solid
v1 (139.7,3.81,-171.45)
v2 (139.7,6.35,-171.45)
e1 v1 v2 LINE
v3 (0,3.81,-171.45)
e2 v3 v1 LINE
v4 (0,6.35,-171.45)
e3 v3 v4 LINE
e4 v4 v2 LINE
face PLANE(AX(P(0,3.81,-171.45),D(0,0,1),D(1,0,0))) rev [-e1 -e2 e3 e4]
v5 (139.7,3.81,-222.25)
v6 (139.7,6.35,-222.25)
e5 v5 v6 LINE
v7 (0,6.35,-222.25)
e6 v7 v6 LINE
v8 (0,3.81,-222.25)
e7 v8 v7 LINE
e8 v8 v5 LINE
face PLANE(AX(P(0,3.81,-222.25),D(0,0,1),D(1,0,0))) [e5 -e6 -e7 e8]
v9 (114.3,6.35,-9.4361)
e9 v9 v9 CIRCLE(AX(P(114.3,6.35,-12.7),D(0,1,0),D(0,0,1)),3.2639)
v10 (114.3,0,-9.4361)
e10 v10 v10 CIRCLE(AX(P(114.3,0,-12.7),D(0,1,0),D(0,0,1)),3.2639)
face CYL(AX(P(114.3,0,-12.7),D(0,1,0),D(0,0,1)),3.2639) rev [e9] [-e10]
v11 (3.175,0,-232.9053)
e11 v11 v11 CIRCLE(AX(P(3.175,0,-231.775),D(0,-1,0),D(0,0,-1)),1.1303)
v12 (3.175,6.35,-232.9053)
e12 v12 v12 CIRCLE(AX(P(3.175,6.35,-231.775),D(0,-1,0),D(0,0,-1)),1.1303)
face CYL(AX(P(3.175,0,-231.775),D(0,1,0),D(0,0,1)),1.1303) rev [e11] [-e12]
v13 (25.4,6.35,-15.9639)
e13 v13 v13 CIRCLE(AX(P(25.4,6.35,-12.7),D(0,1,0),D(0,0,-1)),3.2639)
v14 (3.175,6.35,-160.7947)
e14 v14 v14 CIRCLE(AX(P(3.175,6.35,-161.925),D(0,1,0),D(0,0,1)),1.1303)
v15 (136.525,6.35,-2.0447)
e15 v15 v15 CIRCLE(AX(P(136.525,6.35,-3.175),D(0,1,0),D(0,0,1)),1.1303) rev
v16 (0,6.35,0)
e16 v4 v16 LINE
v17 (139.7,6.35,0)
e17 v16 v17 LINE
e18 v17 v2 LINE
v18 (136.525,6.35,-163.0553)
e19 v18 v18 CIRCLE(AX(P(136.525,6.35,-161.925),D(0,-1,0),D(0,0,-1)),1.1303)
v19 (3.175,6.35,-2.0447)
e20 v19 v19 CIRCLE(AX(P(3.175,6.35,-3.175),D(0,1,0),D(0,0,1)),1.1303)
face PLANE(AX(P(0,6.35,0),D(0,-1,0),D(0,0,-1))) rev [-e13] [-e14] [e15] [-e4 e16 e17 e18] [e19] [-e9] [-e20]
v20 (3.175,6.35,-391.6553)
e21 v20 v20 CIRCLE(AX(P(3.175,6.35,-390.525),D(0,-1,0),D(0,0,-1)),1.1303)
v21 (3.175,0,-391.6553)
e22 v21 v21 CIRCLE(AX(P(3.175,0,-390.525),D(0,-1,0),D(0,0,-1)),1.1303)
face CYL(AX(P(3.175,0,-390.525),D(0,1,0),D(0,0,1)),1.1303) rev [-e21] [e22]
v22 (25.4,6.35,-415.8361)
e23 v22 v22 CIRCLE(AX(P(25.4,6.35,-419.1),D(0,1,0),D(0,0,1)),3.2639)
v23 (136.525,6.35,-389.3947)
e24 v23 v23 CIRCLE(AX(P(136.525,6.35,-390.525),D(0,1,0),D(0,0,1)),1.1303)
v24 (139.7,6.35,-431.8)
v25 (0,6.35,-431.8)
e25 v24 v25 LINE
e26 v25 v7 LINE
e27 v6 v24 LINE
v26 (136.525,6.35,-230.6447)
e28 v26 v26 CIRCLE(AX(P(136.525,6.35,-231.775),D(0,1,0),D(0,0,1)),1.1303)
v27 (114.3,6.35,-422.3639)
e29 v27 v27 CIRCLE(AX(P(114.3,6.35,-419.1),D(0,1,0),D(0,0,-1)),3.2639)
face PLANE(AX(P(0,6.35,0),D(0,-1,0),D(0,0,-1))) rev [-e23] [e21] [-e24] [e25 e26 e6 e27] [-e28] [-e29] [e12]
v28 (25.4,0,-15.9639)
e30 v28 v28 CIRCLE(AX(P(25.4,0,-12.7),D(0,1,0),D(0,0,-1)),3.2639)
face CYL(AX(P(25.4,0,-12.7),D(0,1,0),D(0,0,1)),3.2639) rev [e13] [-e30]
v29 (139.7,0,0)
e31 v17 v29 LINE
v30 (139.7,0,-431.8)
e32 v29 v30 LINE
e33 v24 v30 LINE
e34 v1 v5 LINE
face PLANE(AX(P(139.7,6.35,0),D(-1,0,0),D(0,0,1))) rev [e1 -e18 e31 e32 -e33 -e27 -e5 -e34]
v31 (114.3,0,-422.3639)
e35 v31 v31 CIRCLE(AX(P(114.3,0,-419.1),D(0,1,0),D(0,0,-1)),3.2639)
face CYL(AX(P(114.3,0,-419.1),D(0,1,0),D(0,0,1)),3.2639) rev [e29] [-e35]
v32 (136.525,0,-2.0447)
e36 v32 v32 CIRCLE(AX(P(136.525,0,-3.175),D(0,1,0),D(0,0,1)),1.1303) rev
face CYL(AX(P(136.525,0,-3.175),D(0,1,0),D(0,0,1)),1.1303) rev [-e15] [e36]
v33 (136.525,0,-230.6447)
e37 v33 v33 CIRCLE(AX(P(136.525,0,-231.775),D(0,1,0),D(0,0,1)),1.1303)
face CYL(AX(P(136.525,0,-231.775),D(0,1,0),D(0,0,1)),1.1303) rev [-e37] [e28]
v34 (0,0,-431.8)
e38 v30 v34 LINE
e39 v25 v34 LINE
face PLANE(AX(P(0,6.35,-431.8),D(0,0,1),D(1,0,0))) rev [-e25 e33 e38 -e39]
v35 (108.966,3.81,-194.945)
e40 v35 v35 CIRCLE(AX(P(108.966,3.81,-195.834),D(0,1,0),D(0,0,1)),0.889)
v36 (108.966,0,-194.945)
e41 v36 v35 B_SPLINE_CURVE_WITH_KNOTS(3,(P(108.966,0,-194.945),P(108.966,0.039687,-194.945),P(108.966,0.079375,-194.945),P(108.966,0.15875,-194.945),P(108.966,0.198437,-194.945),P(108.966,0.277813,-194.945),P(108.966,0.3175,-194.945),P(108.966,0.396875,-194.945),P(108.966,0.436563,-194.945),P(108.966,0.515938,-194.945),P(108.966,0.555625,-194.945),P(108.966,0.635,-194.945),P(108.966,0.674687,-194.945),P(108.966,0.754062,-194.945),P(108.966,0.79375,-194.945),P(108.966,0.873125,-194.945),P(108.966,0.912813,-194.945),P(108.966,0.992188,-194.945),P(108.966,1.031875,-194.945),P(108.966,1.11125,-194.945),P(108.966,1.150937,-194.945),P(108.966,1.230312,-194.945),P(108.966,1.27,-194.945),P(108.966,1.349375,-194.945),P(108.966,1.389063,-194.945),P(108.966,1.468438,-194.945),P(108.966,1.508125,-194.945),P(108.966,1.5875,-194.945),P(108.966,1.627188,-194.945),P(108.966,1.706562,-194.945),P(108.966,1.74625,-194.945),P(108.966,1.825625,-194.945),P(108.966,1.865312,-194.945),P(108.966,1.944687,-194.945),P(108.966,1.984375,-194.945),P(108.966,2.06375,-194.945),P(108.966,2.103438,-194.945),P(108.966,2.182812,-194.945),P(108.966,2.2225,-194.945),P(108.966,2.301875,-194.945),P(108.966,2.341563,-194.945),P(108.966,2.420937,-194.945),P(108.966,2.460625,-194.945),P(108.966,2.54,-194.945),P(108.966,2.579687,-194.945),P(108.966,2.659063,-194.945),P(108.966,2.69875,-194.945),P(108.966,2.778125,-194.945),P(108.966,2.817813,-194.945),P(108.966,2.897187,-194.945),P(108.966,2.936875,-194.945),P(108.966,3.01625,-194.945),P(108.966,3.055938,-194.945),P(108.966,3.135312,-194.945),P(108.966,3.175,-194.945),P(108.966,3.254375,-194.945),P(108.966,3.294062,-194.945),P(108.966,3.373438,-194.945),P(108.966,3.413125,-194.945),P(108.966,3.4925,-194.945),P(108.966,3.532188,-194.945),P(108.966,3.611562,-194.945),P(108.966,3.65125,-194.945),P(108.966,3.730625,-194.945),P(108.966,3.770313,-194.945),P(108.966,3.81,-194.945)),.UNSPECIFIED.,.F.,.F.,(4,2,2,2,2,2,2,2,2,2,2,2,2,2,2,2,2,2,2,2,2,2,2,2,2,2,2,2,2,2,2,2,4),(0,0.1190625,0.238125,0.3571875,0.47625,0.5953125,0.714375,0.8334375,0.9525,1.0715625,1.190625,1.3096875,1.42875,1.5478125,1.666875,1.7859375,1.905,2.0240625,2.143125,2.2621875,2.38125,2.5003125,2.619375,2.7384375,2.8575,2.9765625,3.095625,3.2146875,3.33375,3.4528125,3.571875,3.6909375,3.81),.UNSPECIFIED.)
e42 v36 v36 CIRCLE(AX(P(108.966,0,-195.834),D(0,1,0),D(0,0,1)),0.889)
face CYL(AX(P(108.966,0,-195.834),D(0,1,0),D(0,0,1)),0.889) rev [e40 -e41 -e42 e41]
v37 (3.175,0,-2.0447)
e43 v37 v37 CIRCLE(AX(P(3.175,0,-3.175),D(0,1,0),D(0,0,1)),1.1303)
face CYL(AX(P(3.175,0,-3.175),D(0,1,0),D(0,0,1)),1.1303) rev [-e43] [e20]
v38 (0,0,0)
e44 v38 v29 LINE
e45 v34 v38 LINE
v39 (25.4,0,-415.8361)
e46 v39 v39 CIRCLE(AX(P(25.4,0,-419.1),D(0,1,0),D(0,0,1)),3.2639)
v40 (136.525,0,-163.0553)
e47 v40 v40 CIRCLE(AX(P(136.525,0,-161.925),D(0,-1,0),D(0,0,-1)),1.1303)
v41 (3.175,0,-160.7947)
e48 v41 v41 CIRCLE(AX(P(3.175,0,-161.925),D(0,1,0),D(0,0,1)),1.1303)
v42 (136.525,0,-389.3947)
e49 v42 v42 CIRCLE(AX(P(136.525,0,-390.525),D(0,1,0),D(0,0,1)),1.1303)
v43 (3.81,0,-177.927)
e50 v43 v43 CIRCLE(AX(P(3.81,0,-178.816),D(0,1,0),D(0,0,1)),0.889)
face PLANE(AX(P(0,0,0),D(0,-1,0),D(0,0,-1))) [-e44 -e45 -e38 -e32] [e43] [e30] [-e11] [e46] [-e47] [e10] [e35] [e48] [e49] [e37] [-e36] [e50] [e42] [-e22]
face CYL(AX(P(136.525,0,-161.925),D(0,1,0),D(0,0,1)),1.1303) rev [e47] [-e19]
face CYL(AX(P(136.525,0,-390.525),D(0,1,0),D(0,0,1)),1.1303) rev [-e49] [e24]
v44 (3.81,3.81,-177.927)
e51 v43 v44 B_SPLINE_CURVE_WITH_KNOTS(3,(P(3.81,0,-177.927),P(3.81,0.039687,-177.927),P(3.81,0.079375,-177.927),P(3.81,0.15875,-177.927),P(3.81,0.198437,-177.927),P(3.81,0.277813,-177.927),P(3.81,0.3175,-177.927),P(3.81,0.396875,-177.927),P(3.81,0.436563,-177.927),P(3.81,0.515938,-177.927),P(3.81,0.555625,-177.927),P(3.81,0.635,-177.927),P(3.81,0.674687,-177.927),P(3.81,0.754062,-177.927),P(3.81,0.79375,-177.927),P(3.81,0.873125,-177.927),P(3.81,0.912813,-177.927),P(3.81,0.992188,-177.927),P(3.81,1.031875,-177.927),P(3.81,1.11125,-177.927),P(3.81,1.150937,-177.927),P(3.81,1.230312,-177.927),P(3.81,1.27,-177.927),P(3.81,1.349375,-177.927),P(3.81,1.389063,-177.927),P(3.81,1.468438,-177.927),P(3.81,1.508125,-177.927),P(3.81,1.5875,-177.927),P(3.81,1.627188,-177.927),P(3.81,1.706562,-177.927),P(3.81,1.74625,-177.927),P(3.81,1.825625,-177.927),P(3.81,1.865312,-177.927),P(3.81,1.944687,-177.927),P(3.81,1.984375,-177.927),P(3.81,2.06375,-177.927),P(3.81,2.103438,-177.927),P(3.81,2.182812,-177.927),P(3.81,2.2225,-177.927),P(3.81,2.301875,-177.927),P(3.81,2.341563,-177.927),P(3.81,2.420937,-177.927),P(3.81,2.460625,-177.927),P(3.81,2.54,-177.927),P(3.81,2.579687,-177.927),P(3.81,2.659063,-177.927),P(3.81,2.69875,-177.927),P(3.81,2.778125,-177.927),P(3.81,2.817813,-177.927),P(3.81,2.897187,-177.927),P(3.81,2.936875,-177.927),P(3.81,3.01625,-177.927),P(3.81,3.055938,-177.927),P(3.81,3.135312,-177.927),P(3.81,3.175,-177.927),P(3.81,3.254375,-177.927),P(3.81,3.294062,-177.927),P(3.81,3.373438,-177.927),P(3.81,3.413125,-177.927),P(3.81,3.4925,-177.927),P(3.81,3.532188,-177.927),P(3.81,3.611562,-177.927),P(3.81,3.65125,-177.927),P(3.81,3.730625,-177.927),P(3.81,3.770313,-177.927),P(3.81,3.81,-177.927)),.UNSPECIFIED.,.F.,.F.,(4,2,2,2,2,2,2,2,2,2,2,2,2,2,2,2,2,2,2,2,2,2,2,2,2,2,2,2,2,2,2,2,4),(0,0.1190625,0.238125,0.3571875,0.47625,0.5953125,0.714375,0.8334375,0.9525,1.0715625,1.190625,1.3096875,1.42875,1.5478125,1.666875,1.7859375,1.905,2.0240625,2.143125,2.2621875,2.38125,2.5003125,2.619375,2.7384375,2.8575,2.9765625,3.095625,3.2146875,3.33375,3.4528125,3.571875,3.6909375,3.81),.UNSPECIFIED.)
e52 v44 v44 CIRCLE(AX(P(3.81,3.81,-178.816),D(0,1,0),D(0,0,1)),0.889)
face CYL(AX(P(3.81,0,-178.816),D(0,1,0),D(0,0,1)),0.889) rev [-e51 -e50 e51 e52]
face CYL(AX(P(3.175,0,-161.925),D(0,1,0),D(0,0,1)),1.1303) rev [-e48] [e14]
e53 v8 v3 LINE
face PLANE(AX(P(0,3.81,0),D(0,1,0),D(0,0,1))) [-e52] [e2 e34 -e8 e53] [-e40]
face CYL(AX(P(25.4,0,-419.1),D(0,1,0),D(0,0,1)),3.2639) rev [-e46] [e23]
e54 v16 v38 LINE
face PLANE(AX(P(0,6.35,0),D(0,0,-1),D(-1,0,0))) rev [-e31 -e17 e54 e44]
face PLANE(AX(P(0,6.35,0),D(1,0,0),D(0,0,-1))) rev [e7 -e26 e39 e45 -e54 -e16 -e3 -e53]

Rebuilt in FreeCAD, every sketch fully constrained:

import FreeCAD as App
import Part
import Sketcher
from FreeCAD import Vector
Q = App.Units.Quantity


def add_polygon(sketch, points):
    """Adds a closed chain of lines whose ends are joined by coincident constraints."""
    first, n = sketch.GeometryCount, len(points)
    for a, b in zip(points, points[1:] + points[:1]):
        sketch.addGeometry(Part.LineSegment(App.Vector(*a, 0), App.Vector(*b, 0)), False)
    for i in range(n):
        sketch.addConstraint(Sketcher.Constraint("Coincident", first + i, 2, first + (i + 1) % n, 1))

doc = App.newDocument("Part")
body = doc.addObject("PartDesign::Body", "Body")

sketch1 = body.newObject("Sketcher::SketchObject", "Sketch")
sketch1.AttachmentSupport = (doc.getObject("XZ_Plane"), [""])
sketch1.MapMode = "FlatFace"
add_polygon(sketch1, [(0, -432), (0, 0), (140, 0), (140, -432)])
sketch1.addConstraint([
    Sketcher.Constraint("Vertical", 0),
    Sketcher.Constraint("Horizontal", 1),
    Sketcher.Constraint("Vertical", 2),
    Sketcher.Constraint("Horizontal", 3),
    Sketcher.Constraint("Coincident", 0, 2, -1, 1),
    Sketcher.Constraint("DistanceY", 0, 1, 0, 2, Q("17 in")),
    Sketcher.Constraint("DistanceX", 1, 1, 1, 2, Q("5.5 in")),
])
pad1 = body.newObject("PartDesign::Pad", "Pad")
pad1.Profile = sketch1
pad1.Length = Q("0.25 in")
pad1.Reversed = True

sketch2 = body.newObject("Sketcher::SketchObject", "Sketch001")
sketch2.AttachmentSupport = (doc.getObject("XZ_Plane"), [""])
sketch2.MapMode = "FlatFace"
sketch2.AttachmentOffset = App.Placement(Vector(0, 0, -0.25 * 25.4), App.Rotation())
sketch2.addGeometry([
    Part.Circle(Vector(3.2, -3.2, 0), Vector(0, 0, 1), 1.1),
    Part.Circle(Vector(136.5, -3.2, 0), Vector(0, 0, 1), 1.1),
    Part.Circle(Vector(136.5, -161.9, 0), Vector(0, 0, 1), 1.1),
    Part.Circle(Vector(136.5, -231.8, 0), Vector(0, 0, 1), 1.1),
    Part.Circle(Vector(3.2, -161.9, 0), Vector(0, 0, 1), 1.1),
    Part.Circle(Vector(3.2, -231.8, 0), Vector(0, 0, 1), 1.1),
    Part.Circle(Vector(3.2, -390.5, 0), Vector(0, 0, 1), 1.1),
    Part.Circle(Vector(136.5, -390.5, 0), Vector(0, 0, 1), 1.1),
], False)
sketch2.addConstraint([
    Sketcher.Constraint("Equal", 0, 1),
    Sketcher.Constraint("Equal", 1, 2),
    Sketcher.Constraint("Equal", 2, 3),
    Sketcher.Constraint("Equal", 3, 4),
    Sketcher.Constraint("Equal", 4, 5),
    Sketcher.Constraint("Equal", 5, 6),
    Sketcher.Constraint("Equal", 6, 7),
    Sketcher.Constraint("Horizontal", 0, 3, 1, 3),
    Sketcher.Constraint("Horizontal", 2, 3, 4, 3),
    Sketcher.Constraint("Horizontal", 3, 3, 5, 3),
    Sketcher.Constraint("Horizontal", 6, 3, 7, 3),
    Sketcher.Constraint("Vertical", 1, 3, 2, 3),
    Sketcher.Constraint("Vertical", 2, 3, 3, 3),
    Sketcher.Constraint("Vertical", 0, 3, 4, 3),
    Sketcher.Constraint("Vertical", 4, 3, 5, 3),
    Sketcher.Constraint("Vertical", 5, 3, 6, 3),
    Sketcher.Constraint("Vertical", 3, 3, 7, 3),
    Sketcher.Constraint("Diameter", 0, Q("0.089 in")),
    Sketcher.Constraint("DistanceY", 3, 3, 1, 3, Q("9 in")),
    Sketcher.Constraint("DistanceY", 6, 3, 4, 3, Q("9 in")),
    Sketcher.Constraint("DistanceX", 0, 3, 1, 3, Q("5.25 in")),
    Sketcher.Constraint("DistanceY", 2, 3, 1, 3, Q("6.25 in")),
    Sketcher.Constraint("DistanceX", -1, 1, 0, 3, Q("0.125 in")),
    Sketcher.Constraint("DistanceY", 0, 3, -1, 1, Q("0.125 in")),
])
pocket1 = body.newObject("PartDesign::Pocket", "Pocket")
pocket1.Profile = sketch2
pocket1.Length = Q("0.25 in")
pocket1.Reversed = True

sketch3 = body.newObject("Sketcher::SketchObject", "Sketch002")
sketch3.AttachmentSupport = (doc.getObject("XZ_Plane"), [""])
sketch3.MapMode = "FlatFace"
sketch3.AttachmentOffset = App.Placement(Vector(0, 0, -0.25 * 25.4), App.Rotation())
add_polygon(sketch3, [(0, -222), (0, -171), (140, -171), (140, -222)])
sketch3.addConstraint([
    Sketcher.Constraint("Vertical", 0),
    Sketcher.Constraint("Horizontal", 1),
    Sketcher.Constraint("Vertical", 2),
    Sketcher.Constraint("Horizontal", 3),
    Sketcher.Constraint("PointOnObject", 0, 2, -2),
    Sketcher.Constraint("DistanceY", 0, 1, 0, 2, Q("2 in")),
    Sketcher.Constraint("DistanceX", 1, 1, 1, 2, Q("5.5 in")),
    Sketcher.Constraint("DistanceY", 0, 2, -1, 1, Q("6.75 in")),
])
pocket2 = body.newObject("PartDesign::Pocket", "Pocket001")
pocket2.Profile = sketch3
pocket2.Length = Q("0.1 in")
pocket2.Reversed = True

sketch4 = body.newObject("Sketcher::SketchObject", "Sketch003")
sketch4.AttachmentSupport = (doc.getObject("XZ_Plane"), [""])
sketch4.MapMode = "FlatFace"
sketch4.AttachmentOffset = App.Placement(Vector(0, 0, -0.15 * 25.4), App.Rotation())
sketch4.addGeometry([
    Part.Circle(Vector(3.8, -178.8, 0), Vector(0, 0, 1), 0.9),
    Part.Circle(Vector(109, -195.8, 0), Vector(0, 0, 1), 0.9),
], False)
sketch4.addConstraint([
    Sketcher.Constraint("Equal", 0, 1),
    Sketcher.Constraint("Diameter", 0, Q("0.07 in")),
    Sketcher.Constraint("DistanceX", -1, 1, 0, 3, Q("0.15 in")),
    Sketcher.Constraint("DistanceY", 0, 3, -1, 1, Q("7.04 in")),
    Sketcher.Constraint("DistanceX", -1, 1, 1, 3, Q("4.29 in")),
    Sketcher.Constraint("DistanceY", 1, 3, -1, 1, Q("7.71 in")),
])
pocket3 = body.newObject("PartDesign::Pocket", "Pocket002")
pocket3.Profile = sketch4
pocket3.Type = "ThroughAll"
pocket3.Reversed = True

sketch5 = body.newObject("Sketcher::SketchObject", "Sketch004")
sketch5.AttachmentSupport = (doc.getObject("XZ_Plane"), [""])
sketch5.MapMode = "FlatFace"
sketch5.AttachmentOffset = App.Placement(Vector(0, 0, -0.25 * 25.4), App.Rotation())
sketch5.addGeometry([
    Part.Circle(Vector(25.4, -419.1, 0), Vector(0, 0, 1), 3.3),
    Part.Circle(Vector(114.3, -419.1, 0), Vector(0, 0, 1), 3.3),
    Part.Circle(Vector(114.3, -12.7, 0), Vector(0, 0, 1), 3.3),
    Part.Circle(Vector(25.4, -12.7, 0), Vector(0, 0, 1), 3.3),
], False)
sketch5.addConstraint([
    Sketcher.Constraint("Equal", 0, 1),
    Sketcher.Constraint("Equal", 1, 2),
    Sketcher.Constraint("Equal", 2, 3),
    Sketcher.Constraint("Horizontal", 0, 3, 1, 3),
    Sketcher.Constraint("Horizontal", 2, 3, 3, 3),
    Sketcher.Constraint("Vertical", 1, 3, 2, 3),
    Sketcher.Constraint("Vertical", 0, 3, 3, 3),
    Sketcher.Constraint("Diameter", 0, Q("0.257 in")),
    Sketcher.Constraint("DistanceX", -1, 1, 0, 3, Q("1 in")),
    Sketcher.Constraint("DistanceY", 1, 3, 2, 3, Q("16 in")),
    Sketcher.Constraint("DistanceY", 0, 3, -1, 1, Q("16.5 in")),
    Sketcher.Constraint("DistanceX", -1, 1, 1, 3, Q("4.5 in")),
])
pocket4 = body.newObject("PartDesign::Pocket", "Pocket003")
pocket4.Profile = sketch5
pocket4.Type = "ThroughAll"
pocket4.Reversed = True

doc.recompute()
